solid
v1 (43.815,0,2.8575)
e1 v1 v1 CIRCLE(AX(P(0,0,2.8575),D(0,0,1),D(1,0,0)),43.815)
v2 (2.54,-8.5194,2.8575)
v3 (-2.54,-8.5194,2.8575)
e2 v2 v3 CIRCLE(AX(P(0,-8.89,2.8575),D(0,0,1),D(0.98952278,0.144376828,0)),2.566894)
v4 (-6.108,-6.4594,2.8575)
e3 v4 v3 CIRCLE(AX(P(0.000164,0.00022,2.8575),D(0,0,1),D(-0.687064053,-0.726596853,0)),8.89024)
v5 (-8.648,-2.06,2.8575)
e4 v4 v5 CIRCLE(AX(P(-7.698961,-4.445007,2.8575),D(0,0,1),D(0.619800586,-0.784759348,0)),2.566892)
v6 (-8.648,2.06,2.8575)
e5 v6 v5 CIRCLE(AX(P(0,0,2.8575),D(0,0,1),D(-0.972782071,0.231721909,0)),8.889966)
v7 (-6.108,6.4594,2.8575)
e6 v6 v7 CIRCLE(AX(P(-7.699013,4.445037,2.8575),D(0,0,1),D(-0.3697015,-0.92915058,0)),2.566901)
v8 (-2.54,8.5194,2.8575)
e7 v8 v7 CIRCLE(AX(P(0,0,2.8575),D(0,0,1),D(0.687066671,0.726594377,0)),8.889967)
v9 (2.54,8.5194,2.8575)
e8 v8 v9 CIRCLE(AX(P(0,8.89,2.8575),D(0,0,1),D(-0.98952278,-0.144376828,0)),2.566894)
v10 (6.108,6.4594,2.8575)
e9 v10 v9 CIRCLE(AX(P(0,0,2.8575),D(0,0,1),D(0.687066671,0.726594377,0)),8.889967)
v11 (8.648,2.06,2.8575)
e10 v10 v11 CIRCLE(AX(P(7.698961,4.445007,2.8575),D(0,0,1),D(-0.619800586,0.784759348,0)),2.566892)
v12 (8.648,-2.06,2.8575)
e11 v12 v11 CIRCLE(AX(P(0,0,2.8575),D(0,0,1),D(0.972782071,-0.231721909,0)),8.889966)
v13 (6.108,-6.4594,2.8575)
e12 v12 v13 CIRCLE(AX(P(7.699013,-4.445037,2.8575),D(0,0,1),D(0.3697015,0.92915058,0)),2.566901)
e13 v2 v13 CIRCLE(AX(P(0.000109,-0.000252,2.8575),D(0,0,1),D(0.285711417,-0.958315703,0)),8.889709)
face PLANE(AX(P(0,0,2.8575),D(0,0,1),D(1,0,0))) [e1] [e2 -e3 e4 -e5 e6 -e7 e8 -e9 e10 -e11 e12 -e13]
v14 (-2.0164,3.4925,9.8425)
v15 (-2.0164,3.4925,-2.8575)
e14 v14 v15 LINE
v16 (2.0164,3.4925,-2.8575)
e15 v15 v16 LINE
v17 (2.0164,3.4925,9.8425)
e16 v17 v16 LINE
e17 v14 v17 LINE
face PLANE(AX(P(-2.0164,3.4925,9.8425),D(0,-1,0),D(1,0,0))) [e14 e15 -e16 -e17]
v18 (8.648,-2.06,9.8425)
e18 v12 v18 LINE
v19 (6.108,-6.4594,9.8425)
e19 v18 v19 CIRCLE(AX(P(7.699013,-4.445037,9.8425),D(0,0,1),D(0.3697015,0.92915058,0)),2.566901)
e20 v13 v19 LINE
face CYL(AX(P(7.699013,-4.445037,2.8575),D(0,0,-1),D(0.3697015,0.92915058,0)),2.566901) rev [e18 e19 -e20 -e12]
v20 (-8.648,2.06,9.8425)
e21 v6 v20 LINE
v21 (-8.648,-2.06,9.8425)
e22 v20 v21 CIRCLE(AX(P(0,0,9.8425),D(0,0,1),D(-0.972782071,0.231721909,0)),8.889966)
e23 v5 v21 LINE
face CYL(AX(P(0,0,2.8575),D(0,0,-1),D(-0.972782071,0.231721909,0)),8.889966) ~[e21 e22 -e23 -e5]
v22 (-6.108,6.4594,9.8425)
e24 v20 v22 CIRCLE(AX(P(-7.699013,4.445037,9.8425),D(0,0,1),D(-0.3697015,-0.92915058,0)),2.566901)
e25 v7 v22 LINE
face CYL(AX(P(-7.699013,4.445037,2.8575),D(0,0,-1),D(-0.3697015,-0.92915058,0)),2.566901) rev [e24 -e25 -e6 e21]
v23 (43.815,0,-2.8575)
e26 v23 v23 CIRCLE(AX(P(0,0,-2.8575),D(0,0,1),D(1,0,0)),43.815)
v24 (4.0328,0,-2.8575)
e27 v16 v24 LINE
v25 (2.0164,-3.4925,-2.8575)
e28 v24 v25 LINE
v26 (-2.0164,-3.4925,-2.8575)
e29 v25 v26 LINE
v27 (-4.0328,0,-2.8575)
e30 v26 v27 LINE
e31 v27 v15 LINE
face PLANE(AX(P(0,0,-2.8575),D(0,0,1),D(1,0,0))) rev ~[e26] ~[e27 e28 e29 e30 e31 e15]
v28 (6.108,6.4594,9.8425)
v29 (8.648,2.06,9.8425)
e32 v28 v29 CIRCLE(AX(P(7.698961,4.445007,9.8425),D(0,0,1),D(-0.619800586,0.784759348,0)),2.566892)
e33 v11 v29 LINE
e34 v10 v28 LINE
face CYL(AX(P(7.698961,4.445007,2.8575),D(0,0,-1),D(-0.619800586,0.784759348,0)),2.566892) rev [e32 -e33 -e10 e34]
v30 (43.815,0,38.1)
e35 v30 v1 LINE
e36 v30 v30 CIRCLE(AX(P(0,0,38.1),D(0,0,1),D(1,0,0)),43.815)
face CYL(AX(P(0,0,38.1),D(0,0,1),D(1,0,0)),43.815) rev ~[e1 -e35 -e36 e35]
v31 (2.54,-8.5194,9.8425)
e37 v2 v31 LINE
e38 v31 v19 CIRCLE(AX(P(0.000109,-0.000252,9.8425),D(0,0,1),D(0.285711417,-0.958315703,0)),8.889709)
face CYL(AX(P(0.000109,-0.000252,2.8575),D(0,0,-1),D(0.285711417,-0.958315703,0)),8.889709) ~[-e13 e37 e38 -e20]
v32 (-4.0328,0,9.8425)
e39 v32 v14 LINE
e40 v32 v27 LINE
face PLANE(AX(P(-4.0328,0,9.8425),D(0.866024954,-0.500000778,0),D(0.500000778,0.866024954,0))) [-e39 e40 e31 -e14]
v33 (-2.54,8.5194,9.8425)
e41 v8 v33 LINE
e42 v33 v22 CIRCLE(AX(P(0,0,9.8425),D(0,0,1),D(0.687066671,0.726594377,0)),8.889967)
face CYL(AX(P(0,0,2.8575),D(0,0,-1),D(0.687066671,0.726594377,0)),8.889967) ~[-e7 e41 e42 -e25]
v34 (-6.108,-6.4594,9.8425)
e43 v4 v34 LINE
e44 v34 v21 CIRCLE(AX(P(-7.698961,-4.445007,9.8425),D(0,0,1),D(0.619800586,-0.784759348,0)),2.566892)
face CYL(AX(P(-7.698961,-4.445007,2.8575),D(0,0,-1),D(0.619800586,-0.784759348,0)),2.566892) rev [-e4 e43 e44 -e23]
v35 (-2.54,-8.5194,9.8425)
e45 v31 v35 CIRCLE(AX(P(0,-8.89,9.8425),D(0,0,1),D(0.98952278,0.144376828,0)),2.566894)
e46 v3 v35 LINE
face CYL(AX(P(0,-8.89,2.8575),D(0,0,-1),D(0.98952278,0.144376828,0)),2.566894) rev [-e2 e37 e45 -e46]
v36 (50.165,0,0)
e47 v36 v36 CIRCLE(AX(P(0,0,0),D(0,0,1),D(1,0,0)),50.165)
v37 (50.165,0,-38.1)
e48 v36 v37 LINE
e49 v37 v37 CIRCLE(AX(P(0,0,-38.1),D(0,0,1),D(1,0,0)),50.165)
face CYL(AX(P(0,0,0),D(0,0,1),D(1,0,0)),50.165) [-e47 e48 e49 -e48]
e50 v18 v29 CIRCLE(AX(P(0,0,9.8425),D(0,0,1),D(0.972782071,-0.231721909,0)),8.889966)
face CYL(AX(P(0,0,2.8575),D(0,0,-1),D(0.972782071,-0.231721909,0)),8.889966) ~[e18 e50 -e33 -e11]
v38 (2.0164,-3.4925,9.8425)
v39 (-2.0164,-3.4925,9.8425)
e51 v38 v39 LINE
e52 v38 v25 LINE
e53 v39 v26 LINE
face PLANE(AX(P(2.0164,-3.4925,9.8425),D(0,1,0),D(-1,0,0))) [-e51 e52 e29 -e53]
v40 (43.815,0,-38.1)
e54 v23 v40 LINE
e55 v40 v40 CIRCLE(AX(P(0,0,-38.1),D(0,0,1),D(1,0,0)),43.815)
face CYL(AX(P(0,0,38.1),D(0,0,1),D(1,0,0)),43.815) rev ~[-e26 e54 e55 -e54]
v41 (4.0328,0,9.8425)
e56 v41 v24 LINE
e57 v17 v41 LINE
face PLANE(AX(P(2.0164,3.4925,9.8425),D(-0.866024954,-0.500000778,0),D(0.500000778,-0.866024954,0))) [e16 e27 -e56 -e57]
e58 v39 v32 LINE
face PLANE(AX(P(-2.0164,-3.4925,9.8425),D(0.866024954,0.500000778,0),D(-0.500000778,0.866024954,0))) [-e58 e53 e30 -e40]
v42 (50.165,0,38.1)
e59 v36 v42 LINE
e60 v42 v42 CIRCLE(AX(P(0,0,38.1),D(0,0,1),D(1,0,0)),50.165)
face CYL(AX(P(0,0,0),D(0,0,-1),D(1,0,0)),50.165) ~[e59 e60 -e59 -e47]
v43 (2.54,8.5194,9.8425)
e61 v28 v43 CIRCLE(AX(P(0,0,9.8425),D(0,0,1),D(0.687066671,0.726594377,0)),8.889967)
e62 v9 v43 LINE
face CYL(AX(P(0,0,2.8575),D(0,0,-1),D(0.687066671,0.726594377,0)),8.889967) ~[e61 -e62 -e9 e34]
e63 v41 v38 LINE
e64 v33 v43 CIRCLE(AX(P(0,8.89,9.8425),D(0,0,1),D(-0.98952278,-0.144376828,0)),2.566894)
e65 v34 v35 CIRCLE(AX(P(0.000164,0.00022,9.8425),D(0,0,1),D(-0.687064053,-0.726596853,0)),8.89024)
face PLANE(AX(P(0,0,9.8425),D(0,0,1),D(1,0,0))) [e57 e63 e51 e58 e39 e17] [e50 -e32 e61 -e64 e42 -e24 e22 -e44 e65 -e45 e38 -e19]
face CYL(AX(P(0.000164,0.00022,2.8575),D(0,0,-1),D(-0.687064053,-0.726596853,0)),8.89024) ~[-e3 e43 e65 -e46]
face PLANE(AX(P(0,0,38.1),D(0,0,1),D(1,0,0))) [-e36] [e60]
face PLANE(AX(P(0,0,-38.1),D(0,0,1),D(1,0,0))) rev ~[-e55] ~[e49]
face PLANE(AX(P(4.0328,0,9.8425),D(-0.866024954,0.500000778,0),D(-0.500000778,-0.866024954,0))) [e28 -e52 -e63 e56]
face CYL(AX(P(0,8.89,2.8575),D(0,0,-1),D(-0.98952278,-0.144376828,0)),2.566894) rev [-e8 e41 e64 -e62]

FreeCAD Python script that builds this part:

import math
import FreeCAD as App
import Part
import Sketcher

V = App.Vector
Q = App.Units.Quantity

doc = App.newDocument("Part")
params = doc.addObject("Spreadsheet::Sheet", "Params")
for row, (alias, value) in enumerate([
    ("sketch1_diameter", "3.95 in"),
    ("pad1_length", "3 in"),
    ("sketch2_diameter", "3.45 in"),
    ("sketch3_diameter", "3.45 in"),
    ("pad2_length", "0.225 in"),
    ("sketch4_radius", "0.35 in"),
    ("pad3_length", "0.275 in"),
], start=1):
    params.set(f"A{row}", alias)
    params.set(f"B{row}", "=" + value)
    params.setAlias(f"B{row}", alias)

body = doc.addObject("PartDesign::Body", "Body")

sketch1 = body.newObject("Sketcher::SketchObject", "Sketch")
sketch1.AttachmentSupport = (doc.getObject("XY_Plane"), [""])
sketch1.MapMode = "FlatFace"
sketch1.addGeometry(Part.Circle(V(0, 0, 0), V(0, 0, 1), 50), False)
sketch1.addConstraint([
    Sketcher.Constraint("Coincident", 0, 3, -1, 1),
    Sketcher.Constraint("Diameter", 0, Q("3.95 in")),
])
sketch1.setExpression("Constraints[1]", "Params.sketch1_diameter")
pad1 = body.newObject("PartDesign::Pad", "Pad")
pad1.Profile = sketch1
pad1.setExpression("Length", "Params.pad1_length")
pad1.Midplane = True

sketch2 = body.newObject("Sketcher::SketchObject", "Sketch001")
sketch2.AttachmentSupport = (doc.getObject("XY_Plane"), [""])
sketch2.MapMode = "FlatFace"
sketch2.AttachmentOffset = App.Placement(V(0, 0, 1.5 * 25.4), App.Rotation())
sketch2.addGeometry(Part.Circle(V(0, 0, 0), V(0, 0, 1), 44), False)
sketch2.addConstraint([
    Sketcher.Constraint("Coincident", 0, 3, -1, 1),
    Sketcher.Constraint("Diameter", 0, Q("3.45 in")),
])
sketch2.setExpression("Constraints[1]", "Params.sketch2_diameter")
pocket1 = body.newObject("PartDesign::Pocket", "Pocket")
pocket1.Profile = sketch2
pocket1.Type = "ThroughAll"

sketch3 = body.newObject("Sketcher::SketchObject", "Sketch002")
sketch3.AttachmentSupport = (doc.getObject("XY_Plane"), [""])
sketch3.MapMode = "FlatFace"
sketch3.addGeometry(Part.Circle(V(0, 0, 0), V(0, 0, 1), 44), False)
sketch3.addConstraint([
    Sketcher.Constraint("Coincident", 0, 3, -1, 1),
    Sketcher.Constraint("Diameter", 0, Q("3.45 in")),
])
sketch3.setExpression("Constraints[1]", "Params.sketch3_diameter")
pad2 = body.newObject("PartDesign::Pad", "Pad001")
pad2.Profile = sketch3
pad2.setExpression("Length", "Params.pad2_length")
pad2.Midplane = True

sketch4 = body.newObject("Sketcher::SketchObject", "Sketch003")
sketch4.AttachmentSupport = (doc.getObject("XY_Plane"), [""])
sketch4.MapMode = "FlatFace"
sketch4.AttachmentOffset = App.Placement(V(0, 0, 0.1125 * 25.4), App.Rotation())
sketch4.addGeometry([
    Part.ArcOfCircle(Part.Circle(V(-7.7, 4.4, 0), V(0, 0, 1), 2.6), math.radians(-112), math.radians(52)),
    Part.ArcOfCircle(Part.Circle(V(0, 0, 0), V(0, 0, 1), 8.9), math.radians(167), math.radians(193)),
    Part.ArcOfCircle(Part.Circle(V(-7.7, -4.4, 0), V(0, 0, 1), 2.6), math.radians(-52), math.radians(112)),
    Part.ArcOfCircle(Part.Circle(V(0, 0, 0), V(0, 0, 1), 8.9), math.radians(-133), math.radians(-107)),
    Part.ArcOfCircle(Part.Circle(V(0, -8.9, 0), V(0, 0, 1), 2.6), math.radians(8), math.radians(172)),
    Part.ArcOfCircle(Part.Circle(V(0, 0, 0), V(0, 0, 1), 8.9), math.radians(-73), math.radians(-47)),
    Part.ArcOfCircle(Part.Circle(V(7.7, -4.4, 0), V(0, 0, 1), 2.6), math.radians(68), math.radians(232)),
    Part.ArcOfCircle(Part.Circle(V(0, 0, 0), V(0, 0, 1), 8.9), math.radians(-13), math.radians(13)),
    Part.ArcOfCircle(Part.Circle(V(7.7, 4.4, 0), V(0, 0, 1), 2.6), math.radians(128), math.radians(292)),
    Part.ArcOfCircle(Part.Circle(V(0, 0, 0), V(0, 0, 1), 8.9), math.radians(47), math.radians(73)),
    Part.ArcOfCircle(Part.Circle(V(0, 8.9, 0), V(0, 0, 1), 2.6), math.radians(-172), math.radians(-8)),
    Part.ArcOfCircle(Part.Circle(V(0, 0, 0), V(0, 0, 1), 8.9), math.radians(107), math.radians(133)),
], False)
sketch4.addConstraint([
    Sketcher.Constraint("Coincident", 0, 1, 1, 1),
    Sketcher.Constraint("Coincident", 1, 2, 2, 2),
    Sketcher.Constraint("Coincident", 2, 1, 3, 1),
    Sketcher.Constraint("Coincident", 3, 2, 4, 2),
    Sketcher.Constraint("Coincident", 4, 1, 5, 1),
    Sketcher.Constraint("Coincident", 5, 2, 6, 2),
    Sketcher.Constraint("Coincident", 6, 1, 7, 1),
    Sketcher.Constraint("Coincident", 7, 2, 8, 2),
    Sketcher.Constraint("Coincident", 8, 1, 9, 1),
    Sketcher.Constraint("Coincident", 9, 2, 10, 2),
    Sketcher.Constraint("Coincident", 10, 1, 11, 1),
    Sketcher.Constraint("Coincident", 11, 2, 0, 2),
    Sketcher.Constraint("Coincident", 1, 3, -1, 1),
    Sketcher.Constraint("Coincident", 3, 3, -1, 1),
    Sketcher.Constraint("Coincident", 5, 3, -1, 1),
    Sketcher.Constraint("Coincident", 7, 3, -1, 1),
    Sketcher.Constraint("Coincident", 9, 3, -1, 1),
    Sketcher.Constraint("Coincident", 11, 3, -1, 1),
    Sketcher.Constraint("Equal", 0, 2),
    Sketcher.Constraint("Equal", 1, 3),
    Sketcher.Constraint("Equal", 2, 4),
    Sketcher.Constraint("Equal", 3, 5),
    Sketcher.Constraint("Equal", 4, 6),
    Sketcher.Constraint("Equal", 5, 7),
    Sketcher.Constraint("Equal", 6, 8),
    Sketcher.Constraint("Equal", 7, 9),
    Sketcher.Constraint("Equal", 8, 10),
    Sketcher.Constraint("Equal", 9, 11),
    Sketcher.Constraint("Symmetric", 0, 3, 6, 3, -1, 1),
    Sketcher.Constraint("Symmetric", 2, 3, 8, 3, -1, 1),
    Sketcher.Constraint("Symmetric", 4, 3, 10, 3, -1, 1),
    Sketcher.Constraint("Symmetric", 2, 3, 6, 3, -2),
    Sketcher.Constraint("PointOnObject", 4, 3, -2),
    Sketcher.Constraint("Radius", 1, Q("0.35 in")),
    Sketcher.Constraint("DistanceX", 3, 2, 4, 1, Q("0.2 in")),
    Sketcher.Constraint("DistanceX", 1, 2, 2, 1, Q("0.1 in")),
    Sketcher.Constraint("DistanceY", 4, 3, -1, 1, Q("0.35 in")),
    Sketcher.Constraint("DistanceY", 2, 3, 0, 3, Q("0.35 in")),
])
sketch4.setExpression("Constraints[33]", "Params.sketch4_radius")
pad3 = body.newObject("PartDesign::Pad", "Pad002")
pad3.Profile = sketch4
pad3.setExpression("Length", "Params.pad3_length")

sketch5 = body.newObject("Sketcher::SketchObject", "Sketch004")
sketch5.AttachmentSupport = (doc.getObject("XY_Plane"), [""])
sketch5.MapMode = "FlatFace"
sketch5.AttachmentOffset = App.Placement(V(0, 0, 0.3875 * 25.4), App.Rotation())
sketch5.addGeometry([
    Part.LineSegment(V(2, 3.5, 0), V(-2, 3.5, 0)),
    Part.LineSegment(V(-2, 3.5, 0), V(-4, 0, 0)),
    Part.LineSegment(V(-4, 0, 0), V(-2, -3.5, 0)),
    Part.LineSegment(V(-2, -3.5, 0), V(2, -3.5, 0)),
    Part.LineSegment(V(2, -3.5, 0), V(4, 0, 0)),
    Part.LineSegment(V(4, 0, 0), V(2, 3.5, 0)),
], False)
sketch5.addConstraint([
    Sketcher.Constraint("Coincident", 0, 2, 1, 1),
    Sketcher.Constraint("Coincident", 1, 2, 2, 1),
    Sketcher.Constraint("Coincident", 2, 2, 3, 1),
    Sketcher.Constraint("Coincident", 3, 2, 4, 1),
    Sketcher.Constraint("Coincident", 4, 2, 5, 1),
    Sketcher.Constraint("Coincident", 5, 2, 0, 1),
    Sketcher.Constraint("Horizontal", 0),
    Sketcher.Constraint("Horizontal", 3),
    Sketcher.Constraint("Symmetric", 0, 2, 3, 2, -1, 1),
    Sketcher.Constraint("Symmetric", 1, 2, 4, 2, -1, 1),
    Sketcher.Constraint("PointOnObject", 1, 2, -1),
    Sketcher.Constraint("Parallel", 2, 5),
    Sketcher.Constraint("Vertical", 0, 2, 2, 2),
    Sketcher.Constraint("Angle", 1, Q("-120 deg")),
    Sketcher.Constraint("DistanceY", 2, 2, 0, 2, Q("0.275 in")),
    Sketcher.Constraint("DistanceX", 0, 2, 0, 1, 4.0328),
])
pocket2 = body.newObject("PartDesign::Pocket", "Pocket001")
pocket2.Profile = sketch5
pocket2.Type = "ThroughAll"

doc.recompute()
